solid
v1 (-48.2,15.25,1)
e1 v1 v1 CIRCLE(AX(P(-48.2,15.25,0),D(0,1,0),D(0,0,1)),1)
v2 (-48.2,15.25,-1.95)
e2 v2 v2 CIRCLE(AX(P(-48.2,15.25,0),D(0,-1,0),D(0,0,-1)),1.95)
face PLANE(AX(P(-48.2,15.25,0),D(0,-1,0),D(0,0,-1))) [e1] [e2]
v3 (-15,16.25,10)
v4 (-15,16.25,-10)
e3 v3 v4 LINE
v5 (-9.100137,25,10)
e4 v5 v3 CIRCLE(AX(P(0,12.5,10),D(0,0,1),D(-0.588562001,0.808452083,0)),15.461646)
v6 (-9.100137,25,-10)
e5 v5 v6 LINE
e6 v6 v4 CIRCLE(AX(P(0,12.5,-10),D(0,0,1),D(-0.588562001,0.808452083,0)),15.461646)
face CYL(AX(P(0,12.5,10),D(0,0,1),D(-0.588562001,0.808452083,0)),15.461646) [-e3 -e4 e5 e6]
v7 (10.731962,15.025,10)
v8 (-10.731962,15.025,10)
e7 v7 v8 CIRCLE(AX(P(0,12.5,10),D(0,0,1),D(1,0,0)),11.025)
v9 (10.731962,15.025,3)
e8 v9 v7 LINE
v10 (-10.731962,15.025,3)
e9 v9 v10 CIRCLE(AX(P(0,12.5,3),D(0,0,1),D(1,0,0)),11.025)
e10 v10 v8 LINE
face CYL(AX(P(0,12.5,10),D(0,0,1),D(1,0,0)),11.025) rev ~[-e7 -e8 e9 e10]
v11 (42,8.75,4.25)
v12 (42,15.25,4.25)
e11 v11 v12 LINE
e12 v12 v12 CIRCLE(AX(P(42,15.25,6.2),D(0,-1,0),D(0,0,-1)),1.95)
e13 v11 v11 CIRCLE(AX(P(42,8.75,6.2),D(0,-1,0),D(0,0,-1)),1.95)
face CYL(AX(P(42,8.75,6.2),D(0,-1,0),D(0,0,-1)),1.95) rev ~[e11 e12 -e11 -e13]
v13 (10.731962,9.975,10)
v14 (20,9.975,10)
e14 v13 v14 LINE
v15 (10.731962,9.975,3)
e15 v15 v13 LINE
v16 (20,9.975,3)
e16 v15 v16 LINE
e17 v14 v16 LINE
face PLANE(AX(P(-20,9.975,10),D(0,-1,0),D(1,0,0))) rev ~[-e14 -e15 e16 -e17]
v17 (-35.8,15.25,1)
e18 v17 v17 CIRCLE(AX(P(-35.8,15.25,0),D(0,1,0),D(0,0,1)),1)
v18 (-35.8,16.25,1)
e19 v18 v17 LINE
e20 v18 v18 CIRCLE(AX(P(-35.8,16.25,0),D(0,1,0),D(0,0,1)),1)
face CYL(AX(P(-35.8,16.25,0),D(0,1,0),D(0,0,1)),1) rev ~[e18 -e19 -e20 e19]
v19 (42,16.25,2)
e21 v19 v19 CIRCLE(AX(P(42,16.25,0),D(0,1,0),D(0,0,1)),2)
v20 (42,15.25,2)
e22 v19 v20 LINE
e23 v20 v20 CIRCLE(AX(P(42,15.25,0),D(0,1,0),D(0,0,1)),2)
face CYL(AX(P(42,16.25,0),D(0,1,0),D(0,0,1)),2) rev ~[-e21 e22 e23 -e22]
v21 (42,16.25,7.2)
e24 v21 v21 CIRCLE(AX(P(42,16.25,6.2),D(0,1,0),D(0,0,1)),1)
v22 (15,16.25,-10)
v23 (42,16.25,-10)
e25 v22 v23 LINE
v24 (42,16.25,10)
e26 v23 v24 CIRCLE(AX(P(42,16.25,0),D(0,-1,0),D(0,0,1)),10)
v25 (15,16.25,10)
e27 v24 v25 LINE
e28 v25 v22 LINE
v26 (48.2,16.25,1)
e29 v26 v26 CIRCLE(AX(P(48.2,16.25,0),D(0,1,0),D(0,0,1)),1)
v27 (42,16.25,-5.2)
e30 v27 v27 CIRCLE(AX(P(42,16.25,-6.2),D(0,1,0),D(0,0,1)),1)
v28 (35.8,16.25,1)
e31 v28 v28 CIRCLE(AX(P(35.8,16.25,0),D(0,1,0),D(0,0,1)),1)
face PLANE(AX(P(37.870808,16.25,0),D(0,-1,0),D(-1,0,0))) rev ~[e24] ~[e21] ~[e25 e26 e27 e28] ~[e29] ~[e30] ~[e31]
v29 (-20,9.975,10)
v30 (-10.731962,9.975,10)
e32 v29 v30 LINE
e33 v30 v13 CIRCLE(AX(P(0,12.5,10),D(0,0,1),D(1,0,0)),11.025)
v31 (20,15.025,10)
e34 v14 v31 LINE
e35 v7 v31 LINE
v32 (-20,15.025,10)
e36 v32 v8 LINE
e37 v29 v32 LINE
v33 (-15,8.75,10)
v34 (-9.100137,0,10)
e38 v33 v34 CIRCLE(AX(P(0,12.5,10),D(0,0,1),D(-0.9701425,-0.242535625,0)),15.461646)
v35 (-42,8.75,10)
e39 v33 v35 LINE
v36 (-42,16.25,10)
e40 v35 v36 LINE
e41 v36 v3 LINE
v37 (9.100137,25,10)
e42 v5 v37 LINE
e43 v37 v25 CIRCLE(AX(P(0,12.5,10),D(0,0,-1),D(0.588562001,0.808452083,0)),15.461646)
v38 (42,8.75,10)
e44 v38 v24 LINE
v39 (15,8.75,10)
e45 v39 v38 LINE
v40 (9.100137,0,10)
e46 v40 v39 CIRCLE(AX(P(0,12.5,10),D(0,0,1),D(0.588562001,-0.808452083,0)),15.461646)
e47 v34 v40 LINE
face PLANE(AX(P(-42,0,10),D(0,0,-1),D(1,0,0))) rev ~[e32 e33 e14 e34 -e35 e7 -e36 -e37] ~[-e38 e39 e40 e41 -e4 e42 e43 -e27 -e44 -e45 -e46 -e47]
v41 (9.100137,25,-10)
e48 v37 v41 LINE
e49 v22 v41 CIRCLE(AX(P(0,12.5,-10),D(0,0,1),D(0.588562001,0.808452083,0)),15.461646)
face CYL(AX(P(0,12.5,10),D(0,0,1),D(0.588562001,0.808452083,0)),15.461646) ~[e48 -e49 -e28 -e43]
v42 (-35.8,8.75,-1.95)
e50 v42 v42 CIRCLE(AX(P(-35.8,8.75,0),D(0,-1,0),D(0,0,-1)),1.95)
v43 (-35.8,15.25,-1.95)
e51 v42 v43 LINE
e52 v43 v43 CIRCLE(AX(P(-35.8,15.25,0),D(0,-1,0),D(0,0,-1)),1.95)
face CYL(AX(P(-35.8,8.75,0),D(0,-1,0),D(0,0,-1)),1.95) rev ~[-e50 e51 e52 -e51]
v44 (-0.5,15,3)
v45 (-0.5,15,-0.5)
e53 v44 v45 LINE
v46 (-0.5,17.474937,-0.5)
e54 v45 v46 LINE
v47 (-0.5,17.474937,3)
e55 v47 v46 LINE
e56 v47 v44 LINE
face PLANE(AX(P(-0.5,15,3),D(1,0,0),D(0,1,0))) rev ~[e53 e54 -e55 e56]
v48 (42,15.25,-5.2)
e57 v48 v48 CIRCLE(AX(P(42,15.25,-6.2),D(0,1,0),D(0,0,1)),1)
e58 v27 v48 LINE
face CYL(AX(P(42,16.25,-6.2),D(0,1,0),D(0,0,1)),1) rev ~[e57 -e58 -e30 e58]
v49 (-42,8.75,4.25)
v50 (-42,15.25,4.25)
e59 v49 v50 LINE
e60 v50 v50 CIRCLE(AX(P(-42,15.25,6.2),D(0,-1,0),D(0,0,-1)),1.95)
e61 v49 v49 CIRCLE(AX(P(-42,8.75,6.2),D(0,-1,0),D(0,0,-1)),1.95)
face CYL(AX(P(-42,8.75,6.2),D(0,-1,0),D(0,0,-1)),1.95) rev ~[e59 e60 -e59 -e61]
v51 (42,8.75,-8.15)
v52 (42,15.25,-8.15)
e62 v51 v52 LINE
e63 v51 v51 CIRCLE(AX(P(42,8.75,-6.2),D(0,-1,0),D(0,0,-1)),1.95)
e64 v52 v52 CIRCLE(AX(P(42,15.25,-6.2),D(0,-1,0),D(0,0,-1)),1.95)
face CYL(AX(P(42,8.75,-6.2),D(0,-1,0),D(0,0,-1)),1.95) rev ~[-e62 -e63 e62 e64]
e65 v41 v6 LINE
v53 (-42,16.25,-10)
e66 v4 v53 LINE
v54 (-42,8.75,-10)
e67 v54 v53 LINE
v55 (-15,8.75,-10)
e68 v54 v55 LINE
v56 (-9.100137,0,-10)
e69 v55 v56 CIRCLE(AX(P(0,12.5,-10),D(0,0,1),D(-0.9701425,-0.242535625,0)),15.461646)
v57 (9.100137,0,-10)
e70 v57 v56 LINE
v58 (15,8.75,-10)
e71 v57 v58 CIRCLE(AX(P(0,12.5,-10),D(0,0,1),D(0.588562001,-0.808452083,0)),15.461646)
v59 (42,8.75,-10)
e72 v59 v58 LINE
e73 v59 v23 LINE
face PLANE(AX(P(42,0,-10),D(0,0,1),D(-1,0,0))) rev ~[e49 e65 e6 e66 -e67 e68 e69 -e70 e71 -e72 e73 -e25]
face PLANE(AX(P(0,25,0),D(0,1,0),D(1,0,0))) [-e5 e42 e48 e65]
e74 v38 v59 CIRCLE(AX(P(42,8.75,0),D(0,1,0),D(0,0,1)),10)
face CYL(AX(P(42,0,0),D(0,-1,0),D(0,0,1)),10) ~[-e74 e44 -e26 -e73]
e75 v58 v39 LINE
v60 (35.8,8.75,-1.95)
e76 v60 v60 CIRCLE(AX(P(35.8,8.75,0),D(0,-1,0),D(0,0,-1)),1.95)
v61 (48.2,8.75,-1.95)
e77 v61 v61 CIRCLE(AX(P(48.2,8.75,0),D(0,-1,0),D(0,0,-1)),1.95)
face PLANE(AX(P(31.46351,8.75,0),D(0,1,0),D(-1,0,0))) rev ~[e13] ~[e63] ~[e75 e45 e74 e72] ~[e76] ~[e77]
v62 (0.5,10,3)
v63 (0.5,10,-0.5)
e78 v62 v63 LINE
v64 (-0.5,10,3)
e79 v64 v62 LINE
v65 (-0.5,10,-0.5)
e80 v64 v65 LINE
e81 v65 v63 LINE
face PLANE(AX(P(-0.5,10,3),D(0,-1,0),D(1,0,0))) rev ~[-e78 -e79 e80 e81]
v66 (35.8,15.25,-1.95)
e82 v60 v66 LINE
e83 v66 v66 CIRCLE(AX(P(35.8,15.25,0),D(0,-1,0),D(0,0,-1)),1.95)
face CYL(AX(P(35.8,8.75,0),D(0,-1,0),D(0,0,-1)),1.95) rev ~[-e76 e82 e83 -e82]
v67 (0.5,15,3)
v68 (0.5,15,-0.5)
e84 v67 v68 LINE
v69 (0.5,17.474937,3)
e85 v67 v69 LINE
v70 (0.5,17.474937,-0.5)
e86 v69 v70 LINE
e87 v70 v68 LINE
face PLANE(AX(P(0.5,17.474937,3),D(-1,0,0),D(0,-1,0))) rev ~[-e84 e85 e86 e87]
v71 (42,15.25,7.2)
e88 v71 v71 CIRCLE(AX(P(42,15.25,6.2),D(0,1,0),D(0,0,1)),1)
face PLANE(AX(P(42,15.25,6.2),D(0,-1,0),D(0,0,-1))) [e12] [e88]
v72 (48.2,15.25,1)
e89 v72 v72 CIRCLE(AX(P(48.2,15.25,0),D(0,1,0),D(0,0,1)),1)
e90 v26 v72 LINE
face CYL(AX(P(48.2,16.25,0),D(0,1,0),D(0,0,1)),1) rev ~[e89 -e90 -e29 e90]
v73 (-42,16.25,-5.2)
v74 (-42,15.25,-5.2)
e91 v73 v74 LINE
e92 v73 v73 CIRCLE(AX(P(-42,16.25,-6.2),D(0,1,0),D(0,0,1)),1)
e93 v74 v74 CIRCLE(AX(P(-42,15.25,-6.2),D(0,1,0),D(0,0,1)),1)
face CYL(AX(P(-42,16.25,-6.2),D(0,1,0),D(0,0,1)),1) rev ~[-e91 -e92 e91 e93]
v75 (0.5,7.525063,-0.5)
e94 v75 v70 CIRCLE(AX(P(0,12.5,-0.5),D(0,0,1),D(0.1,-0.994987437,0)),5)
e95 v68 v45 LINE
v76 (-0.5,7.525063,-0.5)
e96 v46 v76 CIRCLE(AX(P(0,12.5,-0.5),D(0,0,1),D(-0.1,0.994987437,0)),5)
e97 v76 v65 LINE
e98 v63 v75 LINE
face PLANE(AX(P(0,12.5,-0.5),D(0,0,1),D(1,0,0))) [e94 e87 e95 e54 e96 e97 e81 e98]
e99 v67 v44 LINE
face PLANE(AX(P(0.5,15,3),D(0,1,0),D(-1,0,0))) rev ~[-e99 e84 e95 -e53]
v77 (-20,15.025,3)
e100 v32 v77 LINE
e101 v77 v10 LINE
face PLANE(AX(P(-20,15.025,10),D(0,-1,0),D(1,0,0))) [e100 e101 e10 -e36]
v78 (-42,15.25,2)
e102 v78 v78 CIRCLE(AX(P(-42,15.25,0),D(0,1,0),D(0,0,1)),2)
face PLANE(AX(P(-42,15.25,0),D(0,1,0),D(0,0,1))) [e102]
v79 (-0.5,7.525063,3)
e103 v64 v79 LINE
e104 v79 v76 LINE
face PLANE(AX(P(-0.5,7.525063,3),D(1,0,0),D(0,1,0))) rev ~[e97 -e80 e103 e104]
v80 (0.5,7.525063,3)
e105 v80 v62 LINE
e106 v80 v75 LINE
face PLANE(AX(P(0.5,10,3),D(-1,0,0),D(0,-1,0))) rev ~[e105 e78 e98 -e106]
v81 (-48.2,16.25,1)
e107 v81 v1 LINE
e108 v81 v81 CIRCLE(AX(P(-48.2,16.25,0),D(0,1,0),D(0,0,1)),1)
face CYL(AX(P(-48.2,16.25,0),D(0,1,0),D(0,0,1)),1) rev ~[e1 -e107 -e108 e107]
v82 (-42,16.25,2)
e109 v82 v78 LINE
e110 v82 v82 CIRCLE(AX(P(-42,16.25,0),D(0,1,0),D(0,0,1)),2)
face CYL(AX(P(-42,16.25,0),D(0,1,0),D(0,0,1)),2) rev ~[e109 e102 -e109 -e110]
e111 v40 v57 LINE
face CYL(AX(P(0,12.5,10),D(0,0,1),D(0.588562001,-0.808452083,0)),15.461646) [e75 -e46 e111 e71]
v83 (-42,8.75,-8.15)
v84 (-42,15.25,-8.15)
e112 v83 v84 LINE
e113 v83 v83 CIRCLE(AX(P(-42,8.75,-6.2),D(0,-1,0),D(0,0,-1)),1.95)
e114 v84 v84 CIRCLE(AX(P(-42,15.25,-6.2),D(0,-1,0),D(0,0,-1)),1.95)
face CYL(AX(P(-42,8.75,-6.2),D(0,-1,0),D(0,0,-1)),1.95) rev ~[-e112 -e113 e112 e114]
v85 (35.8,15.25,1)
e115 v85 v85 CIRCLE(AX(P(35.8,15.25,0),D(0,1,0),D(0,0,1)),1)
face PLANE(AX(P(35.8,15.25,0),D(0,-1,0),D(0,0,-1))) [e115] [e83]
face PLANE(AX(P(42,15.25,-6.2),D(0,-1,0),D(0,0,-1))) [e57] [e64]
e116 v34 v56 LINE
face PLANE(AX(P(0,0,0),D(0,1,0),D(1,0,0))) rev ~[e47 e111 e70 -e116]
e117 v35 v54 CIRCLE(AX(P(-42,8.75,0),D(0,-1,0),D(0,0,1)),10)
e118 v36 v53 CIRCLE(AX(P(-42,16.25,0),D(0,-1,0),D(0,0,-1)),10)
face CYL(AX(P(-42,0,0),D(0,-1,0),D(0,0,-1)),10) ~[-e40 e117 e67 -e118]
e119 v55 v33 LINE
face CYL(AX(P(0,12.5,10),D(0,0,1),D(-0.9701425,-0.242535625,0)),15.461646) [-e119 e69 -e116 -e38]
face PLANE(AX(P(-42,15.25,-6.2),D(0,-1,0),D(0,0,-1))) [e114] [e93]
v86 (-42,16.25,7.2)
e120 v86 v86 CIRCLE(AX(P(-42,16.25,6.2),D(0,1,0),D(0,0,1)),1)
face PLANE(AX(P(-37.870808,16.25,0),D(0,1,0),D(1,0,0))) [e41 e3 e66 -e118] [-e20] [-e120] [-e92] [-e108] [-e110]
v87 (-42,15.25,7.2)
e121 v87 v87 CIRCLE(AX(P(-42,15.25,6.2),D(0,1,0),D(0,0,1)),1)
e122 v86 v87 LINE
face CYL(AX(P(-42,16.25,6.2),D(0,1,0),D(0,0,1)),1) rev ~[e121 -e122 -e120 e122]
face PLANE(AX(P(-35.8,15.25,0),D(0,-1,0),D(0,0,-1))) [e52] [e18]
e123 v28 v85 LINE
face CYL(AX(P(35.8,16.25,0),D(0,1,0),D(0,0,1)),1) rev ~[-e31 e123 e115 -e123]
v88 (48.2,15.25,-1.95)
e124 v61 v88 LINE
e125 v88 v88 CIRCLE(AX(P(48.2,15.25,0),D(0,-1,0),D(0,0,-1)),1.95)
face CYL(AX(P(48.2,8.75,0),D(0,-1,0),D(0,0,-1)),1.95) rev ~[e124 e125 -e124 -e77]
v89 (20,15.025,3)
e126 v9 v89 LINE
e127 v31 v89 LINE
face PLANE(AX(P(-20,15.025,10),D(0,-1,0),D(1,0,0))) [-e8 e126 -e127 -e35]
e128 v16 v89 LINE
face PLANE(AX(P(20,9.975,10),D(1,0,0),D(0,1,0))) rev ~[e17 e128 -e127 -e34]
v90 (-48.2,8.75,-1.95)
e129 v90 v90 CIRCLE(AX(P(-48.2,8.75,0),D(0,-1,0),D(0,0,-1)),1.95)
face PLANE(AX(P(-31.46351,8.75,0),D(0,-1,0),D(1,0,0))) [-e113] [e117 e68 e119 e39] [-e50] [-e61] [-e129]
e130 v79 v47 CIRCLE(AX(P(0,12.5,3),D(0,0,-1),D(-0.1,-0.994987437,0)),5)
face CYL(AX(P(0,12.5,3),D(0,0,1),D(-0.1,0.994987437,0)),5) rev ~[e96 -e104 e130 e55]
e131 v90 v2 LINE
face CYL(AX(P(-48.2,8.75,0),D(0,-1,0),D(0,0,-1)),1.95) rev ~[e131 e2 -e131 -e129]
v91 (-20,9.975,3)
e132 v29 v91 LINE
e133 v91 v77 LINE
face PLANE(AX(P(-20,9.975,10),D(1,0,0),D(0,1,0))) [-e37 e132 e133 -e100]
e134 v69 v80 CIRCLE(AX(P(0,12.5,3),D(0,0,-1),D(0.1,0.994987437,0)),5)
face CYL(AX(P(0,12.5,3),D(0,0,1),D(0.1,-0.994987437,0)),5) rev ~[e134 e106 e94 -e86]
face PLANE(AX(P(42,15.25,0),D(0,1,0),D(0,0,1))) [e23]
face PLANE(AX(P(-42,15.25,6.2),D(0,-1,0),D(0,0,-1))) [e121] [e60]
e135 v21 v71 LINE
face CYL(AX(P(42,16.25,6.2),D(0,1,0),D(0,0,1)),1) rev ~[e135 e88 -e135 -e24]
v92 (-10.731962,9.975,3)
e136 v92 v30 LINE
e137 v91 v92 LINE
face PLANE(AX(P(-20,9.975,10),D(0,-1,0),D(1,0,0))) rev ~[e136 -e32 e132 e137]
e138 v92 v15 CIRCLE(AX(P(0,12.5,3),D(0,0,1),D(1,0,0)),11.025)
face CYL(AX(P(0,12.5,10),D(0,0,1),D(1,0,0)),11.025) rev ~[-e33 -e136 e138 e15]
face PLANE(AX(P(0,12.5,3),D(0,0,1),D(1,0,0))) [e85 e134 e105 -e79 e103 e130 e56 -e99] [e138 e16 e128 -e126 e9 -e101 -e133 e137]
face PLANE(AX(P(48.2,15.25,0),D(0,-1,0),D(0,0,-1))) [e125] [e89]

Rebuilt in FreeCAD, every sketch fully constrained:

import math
import FreeCAD as App
import Part
import Sketcher
Q = App.Units.Quantity

doc = App.newDocument("Part")
body = doc.addObject("PartDesign::Body", "Body")

# Sketch on XZ plane
sketch1 = body.newObject("Sketcher::SketchObject", "Sketch")
sketch1.AttachmentSupport = (doc.getObject("XZ_Plane"), [""])
sketch1.MapMode = "FlatFace"
sketch1.addGeometry(Part.LineSegment(App.Vector(-42, 10, 0), App.Vector(42, 10, 0)), False)
sketch1.addGeometry(Part.ArcOfCircle(Part.Circle(App.Vector(42, 0, 0), App.Vector(0, 0, 1), 10), math.radians(-90), math.radians(90)), False)
sketch1.addGeometry(Part.LineSegment(App.Vector(42, -10, 0), App.Vector(-42, -10, 0)), False)
sketch1.addGeometry(Part.ArcOfCircle(Part.Circle(App.Vector(-42, 0, 0), App.Vector(0, 0, 1), 10), math.radians(90), math.radians(270)), False)
sketch1.addConstraint(Sketcher.Constraint("Tangent", 0, 2, 1, 2))
sketch1.addConstraint(Sketcher.Constraint("Tangent", 1, 1, 2, 1))
sketch1.addConstraint(Sketcher.Constraint("Tangent", 2, 2, 3, 2))
sketch1.addConstraint(Sketcher.Constraint("Tangent", 3, 1, 0, 1))
sketch1.addConstraint(Sketcher.Constraint("Horizontal", 0))
sketch1.addConstraint(Sketcher.Constraint("Horizontal", 2))
sketch1.addConstraint(Sketcher.Constraint("Symmetric", 1, 3, 3, 3, -1, 1))
sketch1.addConstraint(Sketcher.Constraint("Radius", 1, Q("10 mm")))
sketch1.addConstraint(Sketcher.Constraint("DistanceX", 0, 1, 0, 2, Q("84 mm")))
pad1 = body.newObject("PartDesign::Pad", "Pad")
pad1.Profile = sketch1
pad1.Length = 25
pad1.Reversed = True

# Sketch on XY plane
sketch2 = body.newObject("Sketcher::SketchObject", "Sketch001")
sketch2.AttachmentSupport = (doc.getObject("XY_Plane"), [""])
sketch2.MapMode = "FlatFace"
sketch2.AttachmentOffset = App.Placement(App.Vector(0, 0, 10), App.Rotation())
sketch2.addGeometry(Part.Circle(App.Vector(0, 12.5, 0), App.Vector(0, 0, 1), 11.025), False)
sketch2.addConstraint(Sketcher.Constraint("PointOnObject", 0, 3, -2))
sketch2.addConstraint(Sketcher.Constraint("Diameter", 0, Q("22.05 mm")))
sketch2.addConstraint(Sketcher.Constraint("DistanceY", -1, 1, 0, 3, Q("12.5 mm")))
pocket1 = body.newObject("PartDesign::Pocket", "Pocket")
pocket1.Profile = sketch2
pocket1.Length = 7

# Sketch on XZ plane
sketch3 = body.newObject("Sketcher::SketchObject", "Sketch002")
sketch3.AttachmentSupport = (doc.getObject("XZ_Plane"), [""])
sketch3.MapMode = "FlatFace"
sketch3.addGeometry(Part.LineSegment(App.Vector(15, 10, 0), App.Vector(15, -10, 0)), False)
sketch3.addGeometry(Part.LineSegment(App.Vector(15, -10, 0), App.Vector(42, -10, 0)), False)
sketch3.addGeometry(Part.ArcOfCircle(Part.Circle(App.Vector(42, 0, 0), App.Vector(0, 0, 1), 10), math.radians(-90), math.radians(90)), False)
sketch3.addGeometry(Part.LineSegment(App.Vector(42, 10, 0), App.Vector(15, 10, 0)), False)
sketch3.addGeometry(Part.LineSegment(App.Vector(-15, -10, 0), App.Vector(-15, 10, 0)), False)
sketch3.addGeometry(Part.LineSegment(App.Vector(-15, 10, 0), App.Vector(-42, 10, 0)), False)
sketch3.addGeometry(Part.ArcOfCircle(Part.Circle(App.Vector(-42, 0, 0), App.Vector(0, 0, 1), 10), math.radians(90), math.radians(270)), False)
sketch3.addGeometry(Part.LineSegment(App.Vector(-42, -10, 0), App.Vector(-15, -10, 0)), False)
sketch3.addConstraint(Sketcher.Constraint("Coincident", 0, 2, 1, 1))
sketch3.addConstraint(Sketcher.Constraint("Tangent", 1, 2, 2, 1))
sketch3.addConstraint(Sketcher.Constraint("Tangent", 2, 2, 3, 1))
sketch3.addConstraint(Sketcher.Constraint("Coincident", 3, 2, 0, 1))
sketch3.addConstraint(Sketcher.Constraint("Coincident", 4, 2, 5, 1))
sketch3.addConstraint(Sketcher.Constraint("Tangent", 5, 2, 6, 1))
sketch3.addConstraint(Sketcher.Constraint("Tangent", 6, 2, 7, 1))
sketch3.addConstraint(Sketcher.Constraint("Coincident", 7, 2, 4, 1))
sketch3.addConstraint(Sketcher.Constraint("Vertical", 0))
sketch3.addConstraint(Sketcher.Constraint("Horizontal", 1))
sketch3.addConstraint(Sketcher.Constraint("Horizontal", 3))
sketch3.addConstraint(Sketcher.Constraint("Vertical", 4))
sketch3.addConstraint(Sketcher.Constraint("Horizontal", 5))
sketch3.addConstraint(Sketcher.Constraint("Horizontal", 7))
sketch3.addConstraint(Sketcher.Constraint("Equal", 2, 6))
sketch3.addConstraint(Sketcher.Constraint("Symmetric", 2, 3, 6, 3, -1, 1))
sketch3.addConstraint(Sketcher.Constraint("Symmetric", 3, 2, 4, 2, -2))
sketch3.addConstraint(Sketcher.Constraint("Radius", 2, Q("10 mm")))
sketch3.addConstraint(Sketcher.Constraint("DistanceX", 1, 1, 1, 2, Q("27 mm")))
sketch3.addConstraint(Sketcher.Constraint("DistanceX", -1, 1, 2, 3, Q("42 mm")))
pocket2 = body.newObject("PartDesign::Pocket", "Pocket001")
pocket2.Profile = sketch3
pocket2.Length = 8.75

# Sketch on XZ plane
sketch4 = body.newObject("Sketcher::SketchObject", "Sketch003")
sketch4.AttachmentSupport = (doc.getObject("XZ_Plane"), [""])
sketch4.MapMode = "FlatFace"
sketch4.AttachmentOffset = App.Placement(App.Vector(0, 0, -25), App.Rotation())
sketch4.addGeometry(Part.LineSegment(App.Vector(15, -10, 0), App.Vector(15, 10, 0)), False)
sketch4.addGeometry(Part.LineSegment(App.Vector(15, 10, 0), App.Vector(55, 10, 0)), False)
sketch4.addGeometry(Part.ArcOfCircle(Part.Circle(App.Vector(55, 0, 0), App.Vector(0, 0, 1), 10), math.radians(-90), math.radians(90)), False)
sketch4.addGeometry(Part.LineSegment(App.Vector(55, -10, 0), App.Vector(15, -10, 0)), False)
sketch4.addGeometry(Part.LineSegment(App.Vector(-15, 10, 0), App.Vector(-15, -10, 0)), False)
sketch4.addGeometry(Part.LineSegment(App.Vector(-15, -10, 0), App.Vector(-55, -10, 0)), False)
sketch4.addGeometry(Part.ArcOfCircle(Part.Circle(App.Vector(-55, 0, 0), App.Vector(0, 0, 1), 10), math.radians(90), math.radians(270)), False)
sketch4.addGeometry(Part.LineSegment(App.Vector(-55, 10, 0), App.Vector(-15, 10, 0)), False)
sketch4.addConstraint(Sketcher.Constraint("Coincident", 0, 2, 1, 1))
sketch4.addConstraint(Sketcher.Constraint("Tangent", 1, 2, 2, 2))
sketch4.addConstraint(Sketcher.Constraint("Tangent", 2, 1, 3, 1))
sketch4.addConstraint(Sketcher.Constraint("Coincident", 3, 2, 0, 1))
sketch4.addConstraint(Sketcher.Constraint("Coincident", 4, 2, 5, 1))
sketch4.addConstraint(Sketcher.Constraint("Tangent", 5, 2, 6, 2))
sketch4.addConstraint(Sketcher.Constraint("Tangent", 6, 1, 7, 1))
sketch4.addConstraint(Sketcher.Constraint("Coincident", 7, 2, 4, 1))
sketch4.addConstraint(Sketcher.Constraint("Vertical", 0))
sketch4.addConstraint(Sketcher.Constraint("Horizontal", 1))
sketch4.addConstraint(Sketcher.Constraint("Horizontal", 3))
sketch4.addConstraint(Sketcher.Constraint("Vertical", 4))
sketch4.addConstraint(Sketcher.Constraint("Horizontal", 5))
sketch4.addConstraint(Sketcher.Constraint("Horizontal", 7))
sketch4.addConstraint(Sketcher.Constraint("Equal", 2, 6))
sketch4.addConstraint(Sketcher.Constraint("Symmetric", 2, 3, 6, 3, -1, 1))
sketch4.addConstraint(Sketcher.Constraint("Symmetric", 3, 2, 4, 2, -2))
sketch4.addConstraint(Sketcher.Constraint("Radius", 2, Q("10 mm")))
sketch4.addConstraint(Sketcher.Constraint("DistanceX", 1, 1, 1, 2, Q("40 mm")))
sketch4.addConstraint(Sketcher.Constraint("DistanceX", -1, 1, 2, 3, Q("55 mm")))
pocket3 = body.newObject("PartDesign::Pocket", "Pocket002")
pocket3.Profile = sketch4
pocket3.Length = 8.75
pocket3.Reversed = True

# Sketch on XZ plane
sketch5 = body.newObject("Sketcher::SketchObject", "Sketch004")
sketch5.AttachmentSupport = (doc.getObject("XZ_Plane"), [""])
sketch5.MapMode = "FlatFace"
sketch5.AttachmentOffset = App.Placement(App.Vector(0, 0, -16.25), App.Rotation())
sketch5.addGeometry(Part.Circle(App.Vector(-42, -6.2, 0), App.Vector(0, 0, 1), 1), False)
sketch5.addGeometry(Part.Circle(App.Vector(-35.8, 0, 0), App.Vector(0, 0, 1), 1), False)
sketch5.addGeometry(Part.Circle(App.Vector(-42, 6.2, 0), App.Vector(0, 0, 1), 1), False)
sketch5.addGeometry(Part.Circle(App.Vector(-48.2, 0, 0), App.Vector(0, 0, 1), 1), False)
sketch5.addGeometry(Part.Circle(App.Vector(42, -6.2, 0), App.Vector(0, 0, 1), 1), False)
sketch5.addGeometry(Part.Circle(App.Vector(48.2, 0, 0), App.Vector(0, 0, 1), 1), False)
sketch5.addGeometry(Part.Circle(App.Vector(42, 6.2, 0), App.Vector(0, 0, 1), 1), False)
sketch5.addGeometry(Part.Circle(App.Vector(35.8, 0, 0), App.Vector(0, 0, 1), 1), False)
sketch5.addConstraint(Sketcher.Constraint("Equal", 0, 1))
sketch5.addConstraint(Sketcher.Constraint("Equal", 1, 2))
sketch5.addConstraint(Sketcher.Constraint("Equal", 2, 3))
sketch5.addConstraint(Sketcher.Constraint("Equal", 3, 4))
sketch5.addConstraint(Sketcher.Constraint("Equal", 4, 5))
sketch5.addConstraint(Sketcher.Constraint("Equal", 5, 6))
sketch5.addConstraint(Sketcher.Constraint("Equal", 6, 7))
sketch5.addConstraint(Sketcher.Constraint("Symmetric", 2, 3, 4, 3, -1, 1))
sketch5.addConstraint(Sketcher.Constraint("Symmetric", 3, 3, 5, 3, -1, 1))
sketch5.addConstraint(Sketcher.Constraint("Symmetric", 0, 3, 6, 3, -1, 1))
sketch5.addConstraint(Sketcher.Constraint("Symmetric", 1, 3, 7, 3, -1, 1))
sketch5.addConstraint(Sketcher.Constraint("Symmetric", 0, 3, 4, 3, -2))
sketch5.addConstraint(Sketcher.Constraint("PointOnObject", 1, 3, -1))
sketch5.addConstraint(Sketcher.Constraint("PointOnObject", 3, 3, -1))
sketch5.addConstraint(Sketcher.Constraint("Diameter", 0, Q("2 mm")))
sketch5.addConstraint(Sketcher.Constraint("DistanceX", 0, 3, -1, 1, Q("42 mm")))
sketch5.addConstraint(Sketcher.Constraint("DistanceX", 1, 3, 5, 3, Q("84 mm")))
sketch5.addConstraint(Sketcher.Constraint("DistanceY", 0, 3, -1, 1, Q("6.2 mm")))
sketch5.addConstraint(Sketcher.Constraint("DistanceX", 1, 3, -1, 1, Q("35.8 mm")))
pocket4 = body.newObject("PartDesign::Pocket", "Pocket003")
pocket4.Profile = sketch5
pocket4.Length = 7.5
pocket4.Reversed = True

# Sketch on XZ plane
sketch6 = body.newObject("Sketcher::SketchObject", "Sketch005")
sketch6.AttachmentSupport = (doc.getObject("XZ_Plane"), [""])
sketch6.MapMode = "FlatFace"
sketch6.AttachmentOffset = App.Placement(App.Vector(0, 0, -8.75), App.Rotation())
sketch6.addGeometry(Part.Circle(App.Vector(-42, 6.2, 0), App.Vector(0, 0, 1), 1.95), False)
sketch6.addGeometry(Part.Circle(App.Vector(-35.8, 0, 0), App.Vector(0, 0, 1), 1.95), False)
sketch6.addGeometry(Part.Circle(App.Vector(-48.2, 0, 0), App.Vector(0, 0, 1), 1.95), False)
sketch6.addGeometry(Part.Circle(App.Vector(-42, -6.2, 0), App.Vector(0, 0, 1), 1.95), False)
sketch6.addGeometry(Part.Circle(App.Vector(42, 6.2, 0), App.Vector(0, 0, 1), 1.95), False)
sketch6.addGeometry(Part.Circle(App.Vector(48.2, 0, 0), App.Vector(0, 0, 1), 1.95), False)
sketch6.addGeometry(Part.Circle(App.Vector(35.8, 0, 0), App.Vector(0, 0, 1), 1.95), False)
sketch6.addGeometry(Part.Circle(App.Vector(42, -6.2, 0), App.Vector(0, 0, 1), 1.95), False)
sketch6.addConstraint(Sketcher.Constraint("Equal", 0, 1))
sketch6.addConstraint(Sketcher.Constraint("Equal", 1, 2))
sketch6.addConstraint(Sketcher.Constraint("Equal", 2, 3))
sketch6.addConstraint(Sketcher.Constraint("Equal", 3, 4))
sketch6.addConstraint(Sketcher.Constraint("Equal", 4, 5))
sketch6.addConstraint(Sketcher.Constraint("Equal", 5, 6))
sketch6.addConstraint(Sketcher.Constraint("Equal", 6, 7))
sketch6.addConstraint(Sketcher.Constraint("Symmetric", 3, 3, 4, 3, -1, 1))
sketch6.addConstraint(Sketcher.Constraint("Symmetric", 2, 3, 5, 3, -1, 1))
sketch6.addConstraint(Sketcher.Constraint("Symmetric", 1, 3, 6, 3, -1, 1))
sketch6.addConstraint(Sketcher.Constraint("Symmetric", 0, 3, 7, 3, -1, 1))
sketch6.addConstraint(Sketcher.Constraint("Symmetric", 0, 3, 4, 3, -2))
sketch6.addConstraint(Sketcher.Constraint("PointOnObject", 1, 3, -1))
sketch6.addConstraint(Sketcher.Constraint("PointOnObject", 2, 3, -1))
sketch6.addConstraint(Sketcher.Constraint("Diameter", 0, Q("3.9 mm")))
sketch6.addConstraint(Sketcher.Constraint("DistanceX", 0, 3, -1, 1, Q("42 mm")))
sketch6.addConstraint(Sketcher.Constraint("DistanceX", 1, 3, 5, 3, Q("84 mm")))
sketch6.addConstraint(Sketcher.Constraint("DistanceY", -1, 1, 0, 3, Q("6.2 mm")))
sketch6.addConstraint(Sketcher.Constraint("DistanceX", 1, 3, -1, 1, Q("35.8 mm")))
pocket5 = body.newObject("PartDesign::Pocket", "Pocket004")
pocket5.Profile = sketch6
pocket5.Length = 6.5

# Sketch on XZ plane
sketch7 = body.newObject("Sketcher::SketchObject", "Sketch006")
sketch7.AttachmentSupport = (doc.getObject("XZ_Plane"), [""])
sketch7.MapMode = "FlatFace"
sketch7.AttachmentOffset = App.Placement(App.Vector(0, 0, -16.25), App.Rotation())
sketch7.addGeometry(Part.Circle(App.Vector(-42, 0, 0), App.Vector(0, 0, 1), 2), False)
sketch7.addGeometry(Part.Circle(App.Vector(42, 0, 0), App.Vector(0, 0, 1), 2), False)
sketch7.addConstraint(Sketcher.Constraint("Equal", 0, 1))
sketch7.addConstraint(Sketcher.Constraint("Symmetric", 0, 3, 1, 3, -1, 1))
sketch7.addConstraint(Sketcher.Constraint("PointOnObject", 0, 3, -1))
sketch7.addConstraint(Sketcher.Constraint("Diameter", 0, Q("4 mm")))
sketch7.addConstraint(Sketcher.Constraint("DistanceX", 0, 3, -1, 1, Q("42 mm")))
pocket6 = body.newObject("PartDesign::Pocket", "Pocket005")
pocket6.Profile = sketch7
pocket6.Length = 1
pocket6.Reversed = True

# Sketch on XY plane
sketch8 = body.newObject("Sketcher::SketchObject", "Sketch007")
sketch8.AttachmentSupport = (doc.getObject("XY_Plane"), [""])
sketch8.MapMode = "FlatFace"
sketch8.AttachmentOffset = App.Placement(App.Vector(0, 0, 10), App.Rotation())
sketch8.addGeometry(Part.LineSegment(App.Vector(-15, 25, 0), App.Vector(-15, 16.25, 0)), False)
sketch8.addGeometry(Part.ArcOfCircle(Part.Circle(App.Vector(0, 12.5, 0), App.Vector(0, 0, 1), 15.461646), math.radians(126.05503), math.radians(165.963757)), False)
sketch8.addGeometry(Part.LineSegment(App.Vector(-9.100137, 25, 0), App.Vector(-15, 25, 0)), False)
sketch8.addGeometry(Part.LineSegment(App.Vector(9.100137, 0, 0), App.Vector(15, 0, 0)), False)
sketch8.addGeometry(Part.LineSegment(App.Vector(15, 0, 0), App.Vector(15, 8.75, 0)), False)
sketch8.addGeometry(Part.ArcOfCircle(Part.Circle(App.Vector(0, 12.5, 0), App.Vector(0, 0, 1), 15.461646), math.radians(-53.94497), math.radians(-14.036243)), False)
sketch8.addGeometry(Part.LineSegment(App.Vector(15, 25, 0), App.Vector(9.100137, 25, 0)), False)
sketch8.addGeometry(Part.ArcOfCircle(Part.Circle(App.Vector(0, 12.5, 0), App.Vector(0, 0, 1), 15.461646), math.radians(14.036243), math.radians(53.94497)), False)
sketch8.addGeometry(Part.LineSegment(App.Vector(15, 16.25, 0), App.Vector(15, 25, 0)), False)
sketch8.addGeometry(Part.LineSegment(App.Vector(-15, 8.75, 0), App.Vector(-15, 0, 0)), False)
sketch8.addGeometry(Part.LineSegment(App.Vector(-15, 0, 0), App.Vector(-9.100137, 0, 0)), False)
sketch8.addGeometry(Part.ArcOfCircle(Part.Circle(App.Vector(0, 12.5, 0), App.Vector(0, 0, 1), 15.461646), math.radians(-165.963757), math.radians(-126.05503)), False)
sketch8.addConstraint(Sketcher.Constraint("Coincident", 0, 2, 1, 2))
sketch8.addConstraint(Sketcher.Constraint("Coincident", 1, 1, 2, 1))
sketch8.addConstraint(Sketcher.Constraint("Coincident", 2, 2, 0, 1))
sketch8.addConstraint(Sketcher.Constraint("Coincident", 3, 2, 4, 1))
sketch8.addConstraint(Sketcher.Constraint("Coincident", 4, 2, 5, 2))
sketch8.addConstraint(Sketcher.Constraint("Coincident", 5, 1, 3, 1))
sketch8.addConstraint(Sketcher.Constraint("Coincident", 6, 2, 7, 2))
sketch8.addConstraint(Sketcher.Constraint("Coincident", 7, 1, 8, 1))
sketch8.addConstraint(Sketcher.Constraint("Coincident", 8, 2, 6, 1))
sketch8.addConstraint(Sketcher.Constraint("Coincident", 9, 2, 10, 1))
sketch8.addConstraint(Sketcher.Constraint("Coincident", 10, 2, 11, 2))
sketch8.addConstraint(Sketcher.Constraint("Coincident", 11, 1, 9, 1))
sketch8.addConstraint(Sketcher.Constraint("Vertical", 0))
sketch8.addConstraint(Sketcher.Constraint("Horizontal", 2))
sketch8.addConstraint(Sketcher.Constraint("Horizontal", 3))
sketch8.addConstraint(Sketcher.Constraint("Vertical", 4))
sketch8.addConstraint(Sketcher.Constraint("Horizontal", 6))
sketch8.addConstraint(Sketcher.Constraint("Vertical", 8))
sketch8.addConstraint(Sketcher.Constraint("Vertical", 9))
sketch8.addConstraint(Sketcher.Constraint("Horizontal", 10))
sketch8.addConstraint(Sketcher.Constraint("Coincident", 5, 3, 1, 3))
sketch8.addConstraint(Sketcher.Constraint("Coincident", 7, 3, 1, 3))
sketch8.addConstraint(Sketcher.Constraint("Coincident", 11, 3, 1, 3))
sketch8.addConstraint(Sketcher.Constraint("Equal", 1, 5))
sketch8.addConstraint(Sketcher.Constraint("Equal", 5, 7))
sketch8.addConstraint(Sketcher.Constraint("Equal", 7, 11))
sketch8.addConstraint(Sketcher.Constraint("Symmetric", 3, 2, 9, 2, -1, 1))
sketch8.addConstraint(Sketcher.Constraint("Symmetric", 1, 1, 6, 2, -2))
sketch8.addConstraint(Sketcher.Constraint("PointOnObject", 3, 2, -1))
sketch8.addConstraint(Sketcher.Constraint("Horizontal", 0, 2, 7, 1))
sketch8.addConstraint(Sketcher.Constraint("Vertical", 5, 1, 6, 2))
sketch8.addConstraint(Sketcher.Constraint("Vertical", 4, 2, 7, 1))
sketch8.addConstraint(Sketcher.Constraint("DistanceX", 0, 2, -1, 1, Q("15 mm")))
sketch8.addConstraint(Sketcher.Constraint("DistanceY", -1, 1, 1, 1, Q("25 mm")))
sketch8.addConstraint(Sketcher.Constraint("DistanceY", 0, 2, 0, 1, Q("8.75 mm")))
pocket7 = body.newObject("PartDesign::Pocket", "Pocket006")
pocket7.Profile = sketch8
pocket7.Type = "ThroughAll"

# Sketch on XY plane
sketch9 = body.newObject("Sketcher::SketchObject", "Sketch008")
sketch9.AttachmentSupport = (doc.getObject("XY_Plane"), [""])
sketch9.MapMode = "FlatFace"
sketch9.AttachmentOffset = App.Placement(App.Vector(0, 0, 3), App.Rotation())
sketch9.addGeometry(Part.LineSegment(App.Vector(0.5, 10, 0), App.Vector(0.5, 7.525063, 0)), False)
sketch9.addGeometry(Part.ArcOfCircle(Part.Circle(App.Vector(0, 12.5, 0), App.Vector(0, 0, 1), 5), math.radians(-84.26083), math.radians(84.26083)), False)
sketch9.addGeometry(Part.LineSegment(App.Vector(0.5, 17.474937, 0), App.Vector(0.5, 15, 0)), False)
sketch9.addGeometry(Part.LineSegment(App.Vector(0.5, 15, 0), App.Vector(-0.5, 15, 0)), False)
sketch9.addGeometry(Part.LineSegment(App.Vector(-0.5, 15, 0), App.Vector(-0.5, 17.474937, 0)), False)
sketch9.addGeometry(Part.ArcOfCircle(Part.Circle(App.Vector(0, 12.5, 0), App.Vector(0, 0, 1), 5), math.radians(95.73917), math.radians(264.26083)), False)
sketch9.addGeometry(Part.LineSegment(App.Vector(-0.5, 7.525063, 0), App.Vector(-0.5, 10, 0)), False)
sketch9.addGeometry(Part.LineSegment(App.Vector(-0.5, 10, 0), App.Vector(0.5, 10, 0)), False)
sketch9.addConstraint(Sketcher.Constraint("Coincident", 0, 2, 1, 1))
sketch9.addConstraint(Sketcher.Constraint("Coincident", 1, 2, 2, 1))
sketch9.addConstraint(Sketcher.Constraint("Coincident", 2, 2, 3, 1))
sketch9.addConstraint(Sketcher.Constraint("Coincident", 3, 2, 4, 1))
sketch9.addConstraint(Sketcher.Constraint("Coincident", 4, 2, 5, 1))
sketch9.addConstraint(Sketcher.Constraint("Coincident", 5, 2, 6, 1))
sketch9.addConstraint(Sketcher.Constraint("Coincident", 6, 2, 7, 1))
sketch9.addConstraint(Sketcher.Constraint("Coincident", 7, 2, 0, 1))
sketch9.addConstraint(Sketcher.Constraint("Vertical", 0))
sketch9.addConstraint(Sketcher.Constraint("Vertical", 2))
sketch9.addConstraint(Sketcher.Constraint("Horizontal", 3))
sketch9.addConstraint(Sketcher.Constraint("Vertical", 4))
sketch9.addConstraint(Sketcher.Constraint("Vertical", 6))
sketch9.addConstraint(Sketcher.Constraint("Horizontal", 7))
sketch9.addConstraint(Sketcher.Constraint("Coincident", 5, 3, 1, 3))
sketch9.addConstraint(Sketcher.Constraint("Equal", 1, 5))
sketch9.addConstraint(Sketcher.Constraint("Symmetric", 1, 2, 4, 2, -2))
sketch9.addConstraint(Sketcher.Constraint("Horizontal", 0, 2, 5, 2))
sketch9.addConstraint(Sketcher.Constraint("Vertical", 0, 2, 1, 2))
sketch9.addConstraint(Sketcher.Constraint("Equal", 0, 2))
sketch9.addConstraint(Sketcher.Constraint("Radius", 1, Q("5 mm")))
sketch9.addConstraint(Sketcher.Constraint("DistanceX", 3, 2, 3, 1, Q("1 mm")))
sketch9.addConstraint(Sketcher.Constraint("DistanceY", -1, 1, 2, 2, Q("15 mm")))
sketch9.addConstraint(Sketcher.Constraint("DistanceY", -1, 1, 6, 2, Q("10 mm")))
pocket8 = body.newObject("PartDesign::Pocket", "Pocket007")
pocket8.Profile = sketch9
pocket8.Length = 3.5

# Sketch on XY plane
sketch10 = body.newObject("Sketcher::SketchObject", "Sketch009")
sketch10.AttachmentSupport = (doc.getObject("XY_Plane"), [""])
sketch10.MapMode = "FlatFace"
sketch10.AttachmentOffset = App.Placement(App.Vector(0, 0, 10), App.Rotation())
sketch10.addGeometry(Part.LineSegment(App.Vector(-20, 15.025, 0), App.Vector(-20, 9.975, 0)), False)
sketch10.addGeometry(Part.LineSegment(App.Vector(-20, 9.975, 0), App.Vector(20, 9.975, 0)), False)
sketch10.addGeometry(Part.LineSegment(App.Vector(20, 9.975, 0), App.Vector(20, 15.025, 0)), False)
sketch10.addGeometry(Part.LineSegment(App.Vector(20, 15.025, 0), App.Vector(-20, 15.025, 0)), False)
sketch10.addConstraint(Sketcher.Constraint("Coincident", 0, 2, 1, 1))
sketch10.addConstraint(Sketcher.Constraint("Coincident", 1, 2, 2, 1))
sketch10.addConstraint(Sketcher.Constraint("Coincident", 2, 2, 3, 1))
sketch10.addConstraint(Sketcher.Constraint("Coincident", 3, 2, 0, 1))
sketch10.addConstraint(Sketcher.Constraint("Vertical", 0))
sketch10.addConstraint(Sketcher.Constraint("Horizontal", 1))
sketch10.addConstraint(Sketcher.Constraint("Vertical", 2))
sketch10.addConstraint(Sketcher.Constraint("Horizontal", 3))
sketch10.addConstraint(Sketcher.Constraint("DistanceX", 1, 1, 1, 2, Q("40 mm")))
sketch10.addConstraint(Sketcher.Constraint("DistanceX", 0, 2, -1, 1, Q("20 mm")))
sketch10.addConstraint(Sketcher.Constraint("DistanceY", 0, 2, 0, 1, Q("5.05 mm")))
sketch10.addConstraint(Sketcher.Constraint("DistanceY", -1, 1, 0, 2, Q("9.975 mm")))
pocket9 = body.newObject("PartDesign::Pocket", "Pocket008")
pocket9.Profile = sketch10
pocket9.Length = 7

doc.recompute()
